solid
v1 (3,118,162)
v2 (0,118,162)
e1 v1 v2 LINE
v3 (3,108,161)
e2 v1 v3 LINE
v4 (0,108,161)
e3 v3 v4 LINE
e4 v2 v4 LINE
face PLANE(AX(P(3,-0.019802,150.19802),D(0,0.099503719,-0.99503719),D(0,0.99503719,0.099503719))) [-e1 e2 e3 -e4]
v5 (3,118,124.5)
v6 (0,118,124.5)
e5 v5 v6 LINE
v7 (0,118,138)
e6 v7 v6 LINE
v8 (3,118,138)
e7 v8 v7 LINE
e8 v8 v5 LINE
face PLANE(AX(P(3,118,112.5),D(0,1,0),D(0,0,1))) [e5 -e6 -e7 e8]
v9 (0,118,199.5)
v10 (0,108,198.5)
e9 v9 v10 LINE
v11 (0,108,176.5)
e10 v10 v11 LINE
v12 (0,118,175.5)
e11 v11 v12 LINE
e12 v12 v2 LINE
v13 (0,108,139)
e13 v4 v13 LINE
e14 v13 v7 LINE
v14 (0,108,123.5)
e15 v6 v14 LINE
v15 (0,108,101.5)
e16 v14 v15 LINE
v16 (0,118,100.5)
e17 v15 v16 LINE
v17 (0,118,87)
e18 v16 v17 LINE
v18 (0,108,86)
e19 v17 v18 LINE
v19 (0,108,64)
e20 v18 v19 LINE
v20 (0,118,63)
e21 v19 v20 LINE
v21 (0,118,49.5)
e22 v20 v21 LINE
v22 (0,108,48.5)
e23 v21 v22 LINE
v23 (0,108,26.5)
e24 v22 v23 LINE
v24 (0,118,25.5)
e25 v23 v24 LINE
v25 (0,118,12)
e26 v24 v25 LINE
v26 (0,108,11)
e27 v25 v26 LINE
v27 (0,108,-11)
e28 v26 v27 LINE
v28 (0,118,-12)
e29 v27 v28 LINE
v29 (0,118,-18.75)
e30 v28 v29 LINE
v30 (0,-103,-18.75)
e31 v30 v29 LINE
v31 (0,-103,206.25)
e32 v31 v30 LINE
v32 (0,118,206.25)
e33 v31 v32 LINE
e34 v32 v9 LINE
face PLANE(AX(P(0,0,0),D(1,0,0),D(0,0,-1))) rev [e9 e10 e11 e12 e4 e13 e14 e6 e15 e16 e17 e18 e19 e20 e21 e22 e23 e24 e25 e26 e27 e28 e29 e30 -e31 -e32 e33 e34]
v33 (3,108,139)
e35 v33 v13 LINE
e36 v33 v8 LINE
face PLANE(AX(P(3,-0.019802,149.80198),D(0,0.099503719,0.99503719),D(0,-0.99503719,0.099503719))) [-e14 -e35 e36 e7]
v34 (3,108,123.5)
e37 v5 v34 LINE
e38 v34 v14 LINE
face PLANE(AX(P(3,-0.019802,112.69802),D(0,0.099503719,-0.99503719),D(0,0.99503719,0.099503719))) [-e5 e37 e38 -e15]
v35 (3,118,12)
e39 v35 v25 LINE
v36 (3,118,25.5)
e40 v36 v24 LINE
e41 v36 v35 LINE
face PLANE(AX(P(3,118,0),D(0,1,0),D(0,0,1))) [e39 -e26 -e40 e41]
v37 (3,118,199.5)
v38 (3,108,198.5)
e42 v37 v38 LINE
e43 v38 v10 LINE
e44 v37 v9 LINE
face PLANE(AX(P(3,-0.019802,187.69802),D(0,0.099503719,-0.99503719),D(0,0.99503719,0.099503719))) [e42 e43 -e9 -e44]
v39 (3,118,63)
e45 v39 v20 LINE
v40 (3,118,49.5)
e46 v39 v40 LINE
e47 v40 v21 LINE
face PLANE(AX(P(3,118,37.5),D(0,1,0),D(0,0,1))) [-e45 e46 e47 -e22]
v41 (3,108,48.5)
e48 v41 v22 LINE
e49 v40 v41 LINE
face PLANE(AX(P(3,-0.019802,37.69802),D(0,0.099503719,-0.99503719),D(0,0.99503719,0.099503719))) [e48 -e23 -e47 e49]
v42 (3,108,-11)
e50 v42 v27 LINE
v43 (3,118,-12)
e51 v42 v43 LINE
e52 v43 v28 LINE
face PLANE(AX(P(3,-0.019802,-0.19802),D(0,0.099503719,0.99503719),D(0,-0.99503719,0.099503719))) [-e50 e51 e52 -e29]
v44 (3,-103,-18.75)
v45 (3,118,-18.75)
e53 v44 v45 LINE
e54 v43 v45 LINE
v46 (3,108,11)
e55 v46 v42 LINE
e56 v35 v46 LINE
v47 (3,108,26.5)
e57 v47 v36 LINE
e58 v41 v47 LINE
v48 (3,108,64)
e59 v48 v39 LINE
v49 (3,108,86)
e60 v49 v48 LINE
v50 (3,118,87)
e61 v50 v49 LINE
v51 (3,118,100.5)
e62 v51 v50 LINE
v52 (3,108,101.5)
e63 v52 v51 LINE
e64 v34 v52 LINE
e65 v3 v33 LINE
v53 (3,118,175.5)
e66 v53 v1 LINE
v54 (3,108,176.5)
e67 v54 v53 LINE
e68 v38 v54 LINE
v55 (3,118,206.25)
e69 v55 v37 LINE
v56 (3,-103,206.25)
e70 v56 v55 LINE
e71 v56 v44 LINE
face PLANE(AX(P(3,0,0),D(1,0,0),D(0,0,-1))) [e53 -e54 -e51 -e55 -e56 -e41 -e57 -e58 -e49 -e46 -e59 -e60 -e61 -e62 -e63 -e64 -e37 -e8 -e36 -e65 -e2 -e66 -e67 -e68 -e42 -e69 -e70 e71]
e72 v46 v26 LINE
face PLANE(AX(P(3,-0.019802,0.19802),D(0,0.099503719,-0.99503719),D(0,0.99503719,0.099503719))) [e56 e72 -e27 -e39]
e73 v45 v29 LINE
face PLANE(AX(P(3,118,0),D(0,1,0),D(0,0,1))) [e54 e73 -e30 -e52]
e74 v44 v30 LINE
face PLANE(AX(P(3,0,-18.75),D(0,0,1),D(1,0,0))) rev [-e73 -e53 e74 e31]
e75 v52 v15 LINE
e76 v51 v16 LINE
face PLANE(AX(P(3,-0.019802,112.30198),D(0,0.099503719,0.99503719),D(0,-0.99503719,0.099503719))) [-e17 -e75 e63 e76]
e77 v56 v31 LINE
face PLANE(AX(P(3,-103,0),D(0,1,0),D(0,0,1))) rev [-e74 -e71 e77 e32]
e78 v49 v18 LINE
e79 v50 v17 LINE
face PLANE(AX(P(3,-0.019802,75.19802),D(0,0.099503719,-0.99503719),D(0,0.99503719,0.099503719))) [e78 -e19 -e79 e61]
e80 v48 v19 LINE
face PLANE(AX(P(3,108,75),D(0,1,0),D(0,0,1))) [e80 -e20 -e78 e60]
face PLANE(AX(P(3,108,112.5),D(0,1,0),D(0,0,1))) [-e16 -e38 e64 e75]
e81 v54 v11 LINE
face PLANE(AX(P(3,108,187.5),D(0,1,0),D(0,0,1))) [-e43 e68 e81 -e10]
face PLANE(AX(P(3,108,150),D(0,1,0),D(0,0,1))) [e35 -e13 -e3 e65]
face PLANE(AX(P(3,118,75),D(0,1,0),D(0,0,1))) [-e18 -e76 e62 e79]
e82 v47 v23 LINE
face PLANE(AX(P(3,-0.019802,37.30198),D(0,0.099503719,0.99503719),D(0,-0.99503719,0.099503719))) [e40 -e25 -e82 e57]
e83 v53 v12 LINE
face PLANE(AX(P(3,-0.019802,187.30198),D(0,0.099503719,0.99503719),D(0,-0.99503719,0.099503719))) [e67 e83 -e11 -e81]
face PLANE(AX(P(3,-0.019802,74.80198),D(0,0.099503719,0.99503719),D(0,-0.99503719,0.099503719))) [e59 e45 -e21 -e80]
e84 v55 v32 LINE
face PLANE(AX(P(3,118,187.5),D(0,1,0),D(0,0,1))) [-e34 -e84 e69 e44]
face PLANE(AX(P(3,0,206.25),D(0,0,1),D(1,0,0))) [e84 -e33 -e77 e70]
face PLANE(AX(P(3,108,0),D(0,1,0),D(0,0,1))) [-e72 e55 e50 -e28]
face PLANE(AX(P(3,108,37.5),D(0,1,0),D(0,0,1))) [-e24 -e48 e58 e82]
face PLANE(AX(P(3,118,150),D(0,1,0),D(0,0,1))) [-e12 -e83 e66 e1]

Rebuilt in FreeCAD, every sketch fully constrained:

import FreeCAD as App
import Part
import Sketcher

V = App.Vector
Q = App.Units.Quantity

doc = App.newDocument("Part")
body = doc.addObject("PartDesign::Body", "Body")

# Sketch on YZ plane
sketch1 = body.newObject("Sketcher::SketchObject", "Sketch")
sketch1.AttachmentSupport = (doc.getObject("YZ_Plane"), [""])
sketch1.MapMode = "FlatFace"
sketch1.addGeometry([
    Part.LineSegment(V(-103, 19, 0), V(-103, -19, 0)),  # 0
    Part.LineSegment(V(-103, -19, 0), V(118, -19, 0)),  # 1
    Part.LineSegment(V(118, -19, 0), V(118, -12, 0)),  # 2
    Part.LineSegment(V(118, -12, 0), V(108, -11, 0)),  # 3
    Part.LineSegment(V(108, -11, 0), V(108, 11, 0)),  # 4
    Part.LineSegment(V(108, 11, 0), V(118, 12, 0)),  # 5
    Part.LineSegment(V(118, 12, 0), V(118, 19, 0)),  # 6
    Part.LineSegment(V(118, 19, 0), V(-103, 19, 0)),  # 7
], False)
sketch1.addConstraint([
    Sketcher.Constraint("Coincident", 0, 2, 1, 1),
    Sketcher.Constraint("Coincident", 1, 2, 2, 1),
    Sketcher.Constraint("Coincident", 2, 2, 3, 1),
    Sketcher.Constraint("Coincident", 3, 2, 4, 1),
    Sketcher.Constraint("Coincident", 4, 2, 5, 1),
    Sketcher.Constraint("Coincident", 5, 2, 6, 1),
    Sketcher.Constraint("Coincident", 6, 2, 7, 1),
    Sketcher.Constraint("Coincident", 7, 2, 0, 1),
    Sketcher.Constraint("Vertical", 0),
    Sketcher.Constraint("Horizontal", 1),
    Sketcher.Constraint("Vertical", 2),
    Sketcher.Constraint("Vertical", 4),
    Sketcher.Constraint("Vertical", 6),
    Sketcher.Constraint("Horizontal", 7),
    Sketcher.Constraint("Symmetric", 2, 2, 5, 2, -1),
    Sketcher.Constraint("Equal", 2, 6),
    Sketcher.Constraint("Equal", 3, 5),
    Sketcher.Constraint("DistanceX", 1, 1, 1, 2, Q("221 mm")),
    Sketcher.Constraint("DistanceY", 4, 1, 4, 2, Q("22 mm")),
    Sketcher.Constraint("DistanceY", 0, 2, 0, 1, Q("37.5 mm")),
    Sketcher.Constraint("DistanceX", 0, 2, -1, 1, Q("103 mm")),
    Sketcher.Constraint("DistanceY", 2, 2, -1, 1, Q("12 mm")),
    Sketcher.Constraint("DistanceX", -1, 1, 3, 2, Q("108 mm")),
])
pad1 = body.newObject("PartDesign::Pad", "Pad")
pad1.Profile = sketch1
pad1.Length = 3
doc.recompute()

linearpattern = body.newObject("PartDesign::LinearPattern", "LinearPattern")
linearpattern.Originals = [pad1]
linearpattern.Direction = (doc.getObject("Z_Axis"), [""])
linearpattern.Mode = "offset"
linearpattern.Offset = 37.5
linearpattern.Occurrences = 6
body.Tip = linearpattern

doc.recompute()
